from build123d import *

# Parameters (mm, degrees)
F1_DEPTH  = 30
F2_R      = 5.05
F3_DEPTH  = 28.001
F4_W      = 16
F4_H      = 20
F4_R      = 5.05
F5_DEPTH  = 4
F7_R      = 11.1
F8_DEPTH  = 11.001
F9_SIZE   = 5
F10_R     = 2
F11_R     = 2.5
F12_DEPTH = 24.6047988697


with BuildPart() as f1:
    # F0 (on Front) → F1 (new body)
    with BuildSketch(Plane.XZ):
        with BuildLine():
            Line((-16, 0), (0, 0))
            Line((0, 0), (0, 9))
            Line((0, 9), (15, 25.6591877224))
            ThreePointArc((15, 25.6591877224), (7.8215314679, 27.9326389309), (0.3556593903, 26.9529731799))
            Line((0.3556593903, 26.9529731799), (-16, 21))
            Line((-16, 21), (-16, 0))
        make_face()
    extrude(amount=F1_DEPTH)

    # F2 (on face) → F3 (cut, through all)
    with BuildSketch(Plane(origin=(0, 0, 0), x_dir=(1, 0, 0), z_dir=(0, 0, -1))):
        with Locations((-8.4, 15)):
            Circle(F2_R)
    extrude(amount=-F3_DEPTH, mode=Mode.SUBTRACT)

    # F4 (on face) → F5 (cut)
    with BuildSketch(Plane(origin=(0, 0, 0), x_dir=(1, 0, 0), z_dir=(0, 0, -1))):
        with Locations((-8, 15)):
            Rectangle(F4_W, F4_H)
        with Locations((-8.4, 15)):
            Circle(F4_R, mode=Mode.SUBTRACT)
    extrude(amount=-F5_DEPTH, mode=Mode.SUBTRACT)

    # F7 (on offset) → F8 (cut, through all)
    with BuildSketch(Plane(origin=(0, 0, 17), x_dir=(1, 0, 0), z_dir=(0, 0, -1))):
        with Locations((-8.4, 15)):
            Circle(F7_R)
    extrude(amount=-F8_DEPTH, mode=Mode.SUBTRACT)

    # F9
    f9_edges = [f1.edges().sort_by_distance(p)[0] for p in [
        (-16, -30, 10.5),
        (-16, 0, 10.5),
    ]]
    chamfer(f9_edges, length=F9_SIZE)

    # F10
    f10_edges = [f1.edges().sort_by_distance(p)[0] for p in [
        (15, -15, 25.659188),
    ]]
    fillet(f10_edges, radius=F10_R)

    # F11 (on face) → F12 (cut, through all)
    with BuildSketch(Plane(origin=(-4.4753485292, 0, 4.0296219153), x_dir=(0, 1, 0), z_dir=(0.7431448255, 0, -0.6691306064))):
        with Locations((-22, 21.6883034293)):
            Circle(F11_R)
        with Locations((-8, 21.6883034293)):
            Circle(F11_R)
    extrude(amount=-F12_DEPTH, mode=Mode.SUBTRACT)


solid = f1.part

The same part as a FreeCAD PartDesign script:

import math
import FreeCAD as App
import Part
import Sketcher

V = App.Vector
Q = App.Units.Quantity


def edges_at(feature, points):
    """Names of the edges that pass closest to the given points."""
    edges = feature.Shape.Edges
    near = lambda p: min(range(len(edges)), key=lambda i: edges[i].distToShape(Part.Vertex(*p))[0])
    return sorted({f"Edge{near(p) + 1}" for p in points})

doc = App.newDocument("Part")
body = doc.addObject("PartDesign::Body", "Body")

# Sketch on XZ plane
sketch1 = doc.addObject("Sketcher::SketchObject", "Sketch")
body.addObject(sketch1)
sketch1.AttachmentSupport = (doc.XZ_Plane, [""])
sketch1.MapMode = "FlatFace"
sketch1.addGeometry([
    Part.LineSegment(V(-16, 0, 0), V(0, 0, 0)),  # 0
    Part.LineSegment(V(0, 0, 0), V(0, 9, 0)),  # 1
    Part.LineSegment(V(0, 9, 0), V(15, 25.659188, 0)),  # 2
    Part.ArcOfCircle(Part.Circle(V(6.293644, 10.638496, 0), V(0, 0, 1), 17.361504), math.radians(59.902382), math.radians(110)),  # 3
    Part.LineSegment(V(0.355659, 26.952973, 0), V(-16, 21, 0)),  # 4
    Part.LineSegment(V(-16, 21, 0), V(-16, 0, 0)),  # 5
], False)
sketch1.addConstraint([
    Sketcher.Constraint("Coincident", 0, 2, 1, 1),
    Sketcher.Constraint("Coincident", 1, 2, 2, 1),
    Sketcher.Constraint("Coincident", 2, 2, 3, 1),
    Sketcher.Constraint("Tangent", 3, 2, 4, 1),
    Sketcher.Constraint("Coincident", 4, 2, 5, 1),
    Sketcher.Constraint("Coincident", 5, 2, 0, 1),
    Sketcher.Constraint("Horizontal", 0),
    Sketcher.Constraint("Vertical", 1),
    Sketcher.Constraint("Vertical", 5),
    Sketcher.Constraint("Coincident", 0, 2, -1, 1),
    Sketcher.Constraint("DistanceX", 0, 1, 0, 2, Q("16 mm")),
    Sketcher.Constraint("DistanceY", 1, 1, 1, 2, Q("9 mm")),
    Sketcher.Constraint("DistanceY", 5, 2, 5, 1, Q("21 mm")),
    Sketcher.Constraint("Angle", 2, Q("48 deg")),
    Sketcher.Constraint("Angle", 4, Q("-160 deg")),
    Sketcher.Constraint("DistanceX", -1, 1, 2, 2, Q("15 mm")),
    Sketcher.Constraint("Radius", 3, Q("17.361504 mm")),
])
pad1 = doc.addObject("PartDesign::Pad", "Pad")
body.addObject(pad1)
pad1.Profile = sketch1
pad1.Length = 30

# Sketch on XY plane
sketch2 = doc.addObject("Sketcher::SketchObject", "Sketch001")
body.addObject(sketch2)
sketch2.AttachmentSupport = (doc.XY_Plane, [""])
sketch2.MapMode = "FlatFace"
sketch2.addGeometry(Part.Circle(V(-8.4, -15, 0), V(0, 0, 1), 5.05), False)
sketch2.addConstraint([
    Sketcher.Constraint("Diameter", 0, Q("10.1 mm")),
    Sketcher.Constraint("DistanceY", 0, 3, -1, 1, Q("15 mm")),
    Sketcher.Constraint("DistanceX", 0, 3, -1, 1, Q("8.4 mm")),
])
pocket1 = doc.addObject("PartDesign::Pocket", "Pocket")
body.addObject(pocket1)
pocket1.Profile = sketch2
pocket1.Type = "ThroughAll"
pocket1.Reversed = True

# Sketch on XY plane
sketch3 = doc.addObject("Sketcher::SketchObject", "Sketch002")
body.addObject(sketch3)
sketch3.AttachmentSupport = (doc.XY_Plane, [""])
sketch3.MapMode = "FlatFace"
sketch3.addGeometry([
    Part.LineSegment(V(-16, -25, 0), V(-16, -5, 0)),  # 0
    Part.LineSegment(V(-16, -5, 0), V(0, -5, 0)),  # 1
    Part.LineSegment(V(0, -5, 0), V(0, -25, 0)),  # 2
    Part.LineSegment(V(0, -25, 0), V(-16, -25, 0)),  # 3
    Part.Circle(V(-8.4, -15, 0), V(0, 0, 1), 5.05),  # 4
], False)
sketch3.addConstraint([
    Sketcher.Constraint("Coincident", 0, 2, 1, 1),
    Sketcher.Constraint("Coincident", 1, 2, 2, 1),
    Sketcher.Constraint("Coincident", 2, 2, 3, 1),
    Sketcher.Constraint("Coincident", 3, 2, 0, 1),
    Sketcher.Constraint("Vertical", 0),
    Sketcher.Constraint("Horizontal", 1),
    Sketcher.Constraint("Vertical", 2),
    Sketcher.Constraint("Horizontal", 3),
    Sketcher.Constraint("PointOnObject", 1, 2, -2),
    Sketcher.Constraint("Diameter", 4, Q("10.1 mm")),
    Sketcher.Constraint("DistanceX", 1, 1, 1, 2, Q("16 mm")),
    Sketcher.Constraint("DistanceY", 0, 1, 0, 2, Q("20 mm")),
    Sketcher.Constraint("DistanceY", 4, 3, -1, 1, Q("15 mm")),
    Sketcher.Constraint("DistanceY", 0, 2, -1, 1, Q("5 mm")),
    Sketcher.Constraint("DistanceX", 4, 3, -1, 1, Q("8.4 mm")),
])
pocket2 = doc.addObject("PartDesign::Pocket", "Pocket001")
body.addObject(pocket2)
pocket2.Profile = sketch3
pocket2.Length = 4
pocket2.Reversed = True

# Sketch on XY plane
sketch4 = doc.addObject("Sketcher::SketchObject", "Sketch003")
body.addObject(sketch4)
sketch4.AttachmentSupport = (doc.XY_Plane, [""])
sketch4.MapMode = "FlatFace"
sketch4.AttachmentOffset = App.Placement(V(0, 0, 17), App.Rotation())
sketch4.addGeometry(Part.Circle(V(-8.4, -15, 0), V(0, 0, 1), 11.1), False)
sketch4.addConstraint([
    Sketcher.Constraint("Diameter", 0, Q("22.2 mm")),
    Sketcher.Constraint("DistanceY", 0, 3, -1, 1, Q("15 mm")),
    Sketcher.Constraint("DistanceX", 0, 3, -1, 1, Q("8.4 mm")),
])
pocket3 = doc.addObject("PartDesign::Pocket", "Pocket002")
body.addObject(pocket3)
pocket3.Profile = sketch4
pocket3.Type = "ThroughAll"
pocket3.Reversed = True
doc.recompute()

chamfer = doc.addObject("PartDesign::Chamfer", "Chamfer")
body.addObject(chamfer)
chamfer.Base = (pocket3, edges_at(pocket3, [(-16, -30, 10.5), (-16, 0, 10.5)]))
chamfer.Size = 5
doc.recompute()

fillet = doc.addObject("PartDesign::Fillet", "Fillet")
body.addObject(fillet)
fillet.Base = (chamfer, edges_at(chamfer, [(15, -15, 25.659)]))
fillet.Radius = 2

# Sketch on an angled plane
sketch5 = doc.addObject("Sketcher::SketchObject", "Sketch004")
body.addObject(sketch5)
sketch5.Placement = App.Placement(V(-4.475349, 0, 4.029622), App.Rotation(V(0, 1, 0), V(0.669130606, 0, 0.743144825), V(0.743144825, 0, -0.669130606), "ZXY"))
sketch5.addGeometry([
    Part.Circle(V(-22, 21.688303, 0), V(0, 0, 1), 2.5),
    Part.Circle(V(-8, 21.688303, 0), V(0, 0, 1), 2.5),
], False)
sketch5.addConstraint([
    Sketcher.Constraint("Equal", 0, 1),
    Sketcher.Constraint("Horizontal", 0, 3, 1, 3),
    Sketcher.Constraint("Diameter", 0, Q("5 mm")),
    Sketcher.Constraint("DistanceX", 0, 3, -1, 1, Q("22 mm")),
    Sketcher.Constraint("DistanceX", 1, 3, -1, 1, Q("8 mm")),
    Sketcher.Constraint("DistanceY", -1, 1, 0, 3, Q("21.688303 mm")),
])
pocket4 = doc.addObject("PartDesign::Pocket", "Pocket003")
body.addObject(pocket4)
pocket4.Profile = sketch5
pocket4.Type = "ThroughAll"

doc.recompute()
